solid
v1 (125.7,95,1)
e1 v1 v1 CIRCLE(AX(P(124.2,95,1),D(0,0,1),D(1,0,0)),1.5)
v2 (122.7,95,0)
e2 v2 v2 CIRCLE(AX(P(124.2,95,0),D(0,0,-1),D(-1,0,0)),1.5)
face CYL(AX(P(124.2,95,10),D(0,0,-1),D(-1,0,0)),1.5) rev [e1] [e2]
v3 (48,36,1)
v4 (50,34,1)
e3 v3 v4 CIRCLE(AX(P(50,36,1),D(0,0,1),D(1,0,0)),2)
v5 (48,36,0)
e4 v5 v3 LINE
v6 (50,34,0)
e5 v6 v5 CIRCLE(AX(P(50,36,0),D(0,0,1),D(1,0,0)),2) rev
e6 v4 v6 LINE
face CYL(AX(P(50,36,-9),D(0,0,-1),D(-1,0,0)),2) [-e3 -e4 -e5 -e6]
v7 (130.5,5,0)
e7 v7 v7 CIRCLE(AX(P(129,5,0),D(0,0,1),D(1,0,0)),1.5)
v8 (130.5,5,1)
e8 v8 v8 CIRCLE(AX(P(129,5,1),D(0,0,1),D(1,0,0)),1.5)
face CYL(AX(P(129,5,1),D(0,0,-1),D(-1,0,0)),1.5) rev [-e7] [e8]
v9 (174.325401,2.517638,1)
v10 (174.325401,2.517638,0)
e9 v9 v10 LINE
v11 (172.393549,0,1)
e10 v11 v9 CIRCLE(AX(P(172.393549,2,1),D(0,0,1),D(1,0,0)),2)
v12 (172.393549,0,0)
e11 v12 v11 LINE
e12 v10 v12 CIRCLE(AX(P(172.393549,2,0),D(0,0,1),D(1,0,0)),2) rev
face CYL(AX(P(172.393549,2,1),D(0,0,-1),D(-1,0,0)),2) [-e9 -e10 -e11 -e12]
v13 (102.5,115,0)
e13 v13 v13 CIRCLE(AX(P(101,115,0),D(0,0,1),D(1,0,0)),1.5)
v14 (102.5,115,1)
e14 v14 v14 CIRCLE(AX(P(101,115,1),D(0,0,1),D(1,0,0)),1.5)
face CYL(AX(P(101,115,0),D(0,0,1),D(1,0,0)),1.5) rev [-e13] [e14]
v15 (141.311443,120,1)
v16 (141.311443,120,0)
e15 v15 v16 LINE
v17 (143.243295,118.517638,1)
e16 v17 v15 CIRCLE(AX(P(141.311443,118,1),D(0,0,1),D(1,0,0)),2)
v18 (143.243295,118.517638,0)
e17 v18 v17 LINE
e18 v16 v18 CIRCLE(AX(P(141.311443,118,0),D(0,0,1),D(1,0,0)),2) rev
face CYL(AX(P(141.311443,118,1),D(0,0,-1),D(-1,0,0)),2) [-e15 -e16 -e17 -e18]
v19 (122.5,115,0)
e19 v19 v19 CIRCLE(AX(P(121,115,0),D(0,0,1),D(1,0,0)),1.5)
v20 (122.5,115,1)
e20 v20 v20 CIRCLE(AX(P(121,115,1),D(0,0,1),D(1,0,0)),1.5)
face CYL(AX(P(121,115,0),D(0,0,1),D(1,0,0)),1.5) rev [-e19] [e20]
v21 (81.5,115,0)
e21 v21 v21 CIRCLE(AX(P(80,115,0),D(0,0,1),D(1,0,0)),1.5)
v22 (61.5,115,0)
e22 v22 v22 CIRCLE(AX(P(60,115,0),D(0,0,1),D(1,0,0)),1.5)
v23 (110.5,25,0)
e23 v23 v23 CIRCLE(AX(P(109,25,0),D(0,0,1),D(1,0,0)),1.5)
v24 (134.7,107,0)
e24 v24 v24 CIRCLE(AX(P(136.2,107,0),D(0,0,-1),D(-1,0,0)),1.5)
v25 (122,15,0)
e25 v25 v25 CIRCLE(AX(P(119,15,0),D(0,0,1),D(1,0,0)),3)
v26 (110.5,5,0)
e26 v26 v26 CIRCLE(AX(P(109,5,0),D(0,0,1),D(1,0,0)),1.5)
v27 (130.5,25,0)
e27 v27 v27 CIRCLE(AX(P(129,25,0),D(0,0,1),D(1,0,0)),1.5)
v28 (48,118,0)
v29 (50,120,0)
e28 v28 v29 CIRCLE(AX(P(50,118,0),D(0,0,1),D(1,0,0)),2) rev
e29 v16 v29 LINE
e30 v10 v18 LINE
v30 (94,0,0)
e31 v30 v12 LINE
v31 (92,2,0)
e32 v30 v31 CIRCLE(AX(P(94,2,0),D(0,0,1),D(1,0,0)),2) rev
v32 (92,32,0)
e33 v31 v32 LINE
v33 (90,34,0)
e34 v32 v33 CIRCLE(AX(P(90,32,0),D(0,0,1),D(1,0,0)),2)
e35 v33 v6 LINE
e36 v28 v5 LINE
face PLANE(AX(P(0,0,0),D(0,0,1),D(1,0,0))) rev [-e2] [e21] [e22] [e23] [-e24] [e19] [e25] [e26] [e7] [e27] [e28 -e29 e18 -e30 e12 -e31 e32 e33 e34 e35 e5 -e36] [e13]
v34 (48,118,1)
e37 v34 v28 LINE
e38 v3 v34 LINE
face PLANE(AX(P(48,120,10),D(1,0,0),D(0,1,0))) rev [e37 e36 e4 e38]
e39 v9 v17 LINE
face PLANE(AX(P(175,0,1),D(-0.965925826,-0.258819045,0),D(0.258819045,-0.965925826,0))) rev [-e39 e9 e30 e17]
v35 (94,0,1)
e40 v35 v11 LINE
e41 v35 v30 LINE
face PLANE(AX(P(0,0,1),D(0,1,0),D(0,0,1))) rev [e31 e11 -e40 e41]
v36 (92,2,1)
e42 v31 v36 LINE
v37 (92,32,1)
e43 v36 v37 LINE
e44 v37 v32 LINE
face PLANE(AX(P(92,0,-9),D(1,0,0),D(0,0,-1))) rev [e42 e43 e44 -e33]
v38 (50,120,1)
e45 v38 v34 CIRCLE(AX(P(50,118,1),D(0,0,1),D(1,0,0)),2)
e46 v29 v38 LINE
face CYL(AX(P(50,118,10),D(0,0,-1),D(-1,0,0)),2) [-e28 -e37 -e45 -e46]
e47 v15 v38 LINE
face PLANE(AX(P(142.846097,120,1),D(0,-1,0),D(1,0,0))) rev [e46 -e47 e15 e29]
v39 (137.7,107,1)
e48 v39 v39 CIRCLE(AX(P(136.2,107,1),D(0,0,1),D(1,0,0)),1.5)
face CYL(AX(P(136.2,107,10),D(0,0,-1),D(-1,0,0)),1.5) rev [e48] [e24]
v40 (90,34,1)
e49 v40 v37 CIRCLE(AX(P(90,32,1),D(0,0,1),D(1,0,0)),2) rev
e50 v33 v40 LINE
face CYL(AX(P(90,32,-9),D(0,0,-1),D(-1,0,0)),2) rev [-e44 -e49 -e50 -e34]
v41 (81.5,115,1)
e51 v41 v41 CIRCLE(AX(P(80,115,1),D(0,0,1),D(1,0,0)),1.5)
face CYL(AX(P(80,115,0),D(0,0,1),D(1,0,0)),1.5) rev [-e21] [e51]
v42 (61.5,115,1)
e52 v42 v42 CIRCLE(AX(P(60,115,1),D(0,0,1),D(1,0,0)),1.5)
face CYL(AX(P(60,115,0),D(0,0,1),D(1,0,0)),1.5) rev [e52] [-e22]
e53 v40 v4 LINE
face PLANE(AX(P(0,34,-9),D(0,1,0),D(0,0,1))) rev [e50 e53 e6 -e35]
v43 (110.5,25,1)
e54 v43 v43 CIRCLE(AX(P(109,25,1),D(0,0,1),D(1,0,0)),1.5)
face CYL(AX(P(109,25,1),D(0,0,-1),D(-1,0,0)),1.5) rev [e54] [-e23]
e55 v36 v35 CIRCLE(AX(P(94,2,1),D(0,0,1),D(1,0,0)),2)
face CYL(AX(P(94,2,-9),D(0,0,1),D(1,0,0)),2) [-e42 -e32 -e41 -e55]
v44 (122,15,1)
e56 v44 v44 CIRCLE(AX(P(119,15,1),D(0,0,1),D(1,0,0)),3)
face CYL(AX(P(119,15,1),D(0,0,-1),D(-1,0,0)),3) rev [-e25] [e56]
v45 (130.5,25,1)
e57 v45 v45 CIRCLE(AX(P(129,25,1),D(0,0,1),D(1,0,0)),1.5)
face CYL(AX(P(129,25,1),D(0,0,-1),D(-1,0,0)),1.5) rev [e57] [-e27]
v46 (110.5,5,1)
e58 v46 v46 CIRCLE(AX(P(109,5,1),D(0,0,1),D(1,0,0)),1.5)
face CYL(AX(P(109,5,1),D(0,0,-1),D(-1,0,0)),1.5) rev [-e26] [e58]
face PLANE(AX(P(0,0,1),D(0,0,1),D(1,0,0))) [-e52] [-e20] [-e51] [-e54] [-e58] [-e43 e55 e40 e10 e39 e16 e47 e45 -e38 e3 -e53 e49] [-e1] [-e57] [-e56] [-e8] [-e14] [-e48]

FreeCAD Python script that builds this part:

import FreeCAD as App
import Part
import Sketcher
Q = App.Units.Quantity


def edges_at(feature, points):
    """Names of the edges that pass closest to the given points."""
    edges = feature.Shape.Edges
    near = lambda p: min(range(len(edges)), key=lambda i: edges[i].distToShape(Part.Vertex(*p))[0])
    return sorted({f"Edge{near(p) + 1}" for p in points})

doc = App.newDocument("Part")
body = doc.addObject("PartDesign::Body", "Body")

# Sketch on XY plane
sketch1 = doc.addObject("Sketcher::SketchObject", "Sketch")
body.addObject(sketch1)
sketch1.AttachmentSupport = (doc.XY_Plane, [""])
sketch1.MapMode = "FlatFace"
sketch1.addGeometry([
    Part.LineSegment(App.Vector(0, 0, 0), App.Vector(175, 0, 0)),  # 0
    Part.LineSegment(App.Vector(175, 0, 0), App.Vector(142.846097, 120, 0)),  # 1
    Part.LineSegment(App.Vector(142.846097, 120, 0), App.Vector(0, 120, 0)),  # 2
    Part.LineSegment(App.Vector(0, 120, 0), App.Vector(0, 0, 0)),  # 3
    Part.Circle(App.Vector(109, 5, 0), App.Vector(0, 0, 1), 1.5),  # 4
    Part.Circle(App.Vector(129, 5, 0), App.Vector(0, 0, 1), 1.5),  # 5
    Part.Circle(App.Vector(109, 25, 0), App.Vector(0, 0, 1), 1.5),  # 6
    Part.Circle(App.Vector(119, 15, 0), App.Vector(0, 0, 1), 3),  # 7
    Part.Circle(App.Vector(129, 25, 0), App.Vector(0, 0, 1), 1.5),  # 8
], False)
sketch1.addConstraint([
    Sketcher.Constraint("Coincident", 0, 2, 1, 1),
    Sketcher.Constraint("Coincident", 1, 2, 2, 1),
    Sketcher.Constraint("Coincident", 2, 2, 3, 1),
    Sketcher.Constraint("Coincident", 3, 2, 0, 1),
    Sketcher.Constraint("Horizontal", 0),
    Sketcher.Constraint("Horizontal", 2),
    Sketcher.Constraint("Vertical", 3),
    Sketcher.Constraint("Coincident", 3, 2, -1, 1),
    Sketcher.Constraint("Equal", 4, 5),
    Sketcher.Constraint("Equal", 5, 6),
    Sketcher.Constraint("Equal", 6, 8),
    Sketcher.Constraint("Horizontal", 4, 3, 5, 3),
    Sketcher.Constraint("Horizontal", 6, 3, 8, 3),
    Sketcher.Constraint("Vertical", 4, 3, 6, 3),
    Sketcher.Constraint("Vertical", 5, 3, 8, 3),
    Sketcher.Constraint("Diameter", 4, 3.0),
    Sketcher.Constraint("Diameter", 7, 6.0),
    Sketcher.Constraint("DistanceX", 0, 1, 0, 2, 175.0),
    Sketcher.Constraint("DistanceY", 3, 2, 3, 1, 120.0),
    Sketcher.Constraint("Angle", 1, Q("105 deg")),
    Sketcher.Constraint("DistanceX", -1, 1, 4, 3, 109.0),
    Sketcher.Constraint("DistanceY", -1, 1, 4, 3, 5.0),
    Sketcher.Constraint("DistanceX", -1, 1, 5, 3, 129.0),
    Sketcher.Constraint("DistanceY", -1, 1, 6, 3, 25.0),
    Sketcher.Constraint("DistanceX", -1, 1, 7, 3, 119.0),
    Sketcher.Constraint("DistanceY", -1, 1, 7, 3, 15.0),
])
pad1 = doc.addObject("PartDesign::Pad", "Pad")
body.addObject(pad1)
pad1.Profile = sketch1
pad1.Length = 1

# Sketch on XY plane
sketch2 = doc.addObject("Sketcher::SketchObject", "Sketch001")
body.addObject(sketch2)
sketch2.AttachmentSupport = (doc.XY_Plane, [""])
sketch2.MapMode = "FlatFace"
sketch2.addGeometry([
    Part.Circle(App.Vector(22, 101, 0), App.Vector(0, 0, 1), 1.5),
    Part.Circle(App.Vector(22, 81, 0), App.Vector(0, 0, 1), 1.5),
    Part.Circle(App.Vector(22, 60, 0), App.Vector(0, 0, 1), 1.5),
    Part.Circle(App.Vector(22, 40, 0), App.Vector(0, 0, 1), 1.5),
], False)
sketch2.addConstraint([
    Sketcher.Constraint("Equal", 0, 1),
    Sketcher.Constraint("Equal", 1, 2),
    Sketcher.Constraint("Equal", 2, 3),
    Sketcher.Constraint("Vertical", 0, 3, 1, 3),
    Sketcher.Constraint("Vertical", 1, 3, 2, 3),
    Sketcher.Constraint("Vertical", 2, 3, 3, 3),
    Sketcher.Constraint("Diameter", 0, 3.0),
    Sketcher.Constraint("DistanceX", -1, 1, 0, 3, 22.0),
    Sketcher.Constraint("DistanceY", -1, 1, 0, 3, 101.0),
    Sketcher.Constraint("DistanceY", -1, 1, 1, 3, 81.0),
    Sketcher.Constraint("DistanceY", -1, 1, 2, 3, 60.0),
    Sketcher.Constraint("DistanceY", -1, 1, 3, 3, 40.0),
])
pocket1 = doc.addObject("PartDesign::Pocket", "Pocket")
body.addObject(pocket1)
pocket1.Profile = sketch2
pocket1.Length = 4
pocket1.Reversed = True

# Sketch on XY plane
sketch3 = doc.addObject("Sketcher::SketchObject", "Sketch002")
body.addObject(sketch3)
sketch3.AttachmentSupport = (doc.XY_Plane, [""])
sketch3.MapMode = "FlatFace"
sketch3.addGeometry([
    Part.Circle(App.Vector(136.2, 107, 0), App.Vector(0, 0, 1), 1.5),
    Part.Circle(App.Vector(124.2, 95, 0), App.Vector(0, 0, 1), 1.5),
], False)
sketch3.addConstraint([
    Sketcher.Constraint("Equal", 0, 1),
    Sketcher.Constraint("Diameter", 0, 3.0),
    Sketcher.Constraint("DistanceY", -1, 1, 0, 3, 107.0),
    Sketcher.Constraint("DistanceY", -1, 1, 1, 3, 95.0),
    Sketcher.Constraint("DistanceX", 1, 3, 0, 3, 12.0),
    Sketcher.Constraint("DistanceX", -1, 1, 0, 3, 136.2),
])
pocket2 = doc.addObject("PartDesign::Pocket", "Pocket001")
body.addObject(pocket2)
pocket2.Profile = sketch3
pocket2.Length = 10
pocket2.Reversed = True

# Sketch on XY plane
sketch4 = doc.addObject("Sketcher::SketchObject", "Sketch003")
body.addObject(sketch4)
sketch4.AttachmentSupport = (doc.XY_Plane, [""])
sketch4.MapMode = "FlatFace"
sketch4.AttachmentOffset = App.Placement(App.Vector(0, 0, 1), App.Rotation())
sketch4.addGeometry([
    Part.LineSegment(App.Vector(0, 34, 0), App.Vector(0, 0, 0)),
    Part.LineSegment(App.Vector(0, 0, 0), App.Vector(53, 0, 0)),
    Part.LineSegment(App.Vector(53, 0, 0), App.Vector(53, 34, 0)),
    Part.LineSegment(App.Vector(53, 34, 0), App.Vector(0, 34, 0)),
], False)
sketch4.addConstraint([
    Sketcher.Constraint("Coincident", 0, 2, 1, 1),
    Sketcher.Constraint("Coincident", 1, 2, 2, 1),
    Sketcher.Constraint("Coincident", 2, 2, 3, 1),
    Sketcher.Constraint("Coincident", 3, 2, 0, 1),
    Sketcher.Constraint("Vertical", 0),
    Sketcher.Constraint("Horizontal", 1),
    Sketcher.Constraint("Vertical", 2),
    Sketcher.Constraint("Horizontal", 3),
    Sketcher.Constraint("Coincident", 0, 2, -1, 1),
    Sketcher.Constraint("DistanceX", 1, 1, 1, 2, 53.0),
    Sketcher.Constraint("DistanceY", 0, 2, 0, 1, 34.0),
])
pocket3 = doc.addObject("PartDesign::Pocket", "Pocket002")
body.addObject(pocket3)
pocket3.Profile = sketch4
pocket3.Length = 10

# Sketch on XY plane
sketch5 = doc.addObject("Sketcher::SketchObject", "Sketch004")
body.addObject(sketch5)
sketch5.AttachmentSupport = (doc.XY_Plane, [""])
sketch5.MapMode = "FlatFace"
sketch5.AttachmentOffset = App.Placement(App.Vector(0, 0, 1), App.Rotation())
sketch5.addGeometry([
    Part.LineSegment(App.Vector(53, 34, 0), App.Vector(53, 0, 0)),
    Part.LineSegment(App.Vector(53, 0, 0), App.Vector(92, 0, 0)),
    Part.LineSegment(App.Vector(92, 0, 0), App.Vector(92, 34, 0)),
    Part.LineSegment(App.Vector(92, 34, 0), App.Vector(53, 34, 0)),
], False)
sketch5.addConstraint([
    Sketcher.Constraint("Coincident", 0, 2, 1, 1),
    Sketcher.Constraint("Coincident", 1, 2, 2, 1),
    Sketcher.Constraint("Coincident", 2, 2, 3, 1),
    Sketcher.Constraint("Coincident", 3, 2, 0, 1),
    Sketcher.Constraint("Vertical", 0),
    Sketcher.Constraint("Horizontal", 1),
    Sketcher.Constraint("Vertical", 2),
    Sketcher.Constraint("Horizontal", 3),
    Sketcher.Constraint("PointOnObject", 0, 2, -1),
    Sketcher.Constraint("DistanceX", 1, 1, 1, 2, 39.0),
    Sketcher.Constraint("DistanceY", 0, 2, 0, 1, 34.0),
    Sketcher.Constraint("DistanceX", -1, 1, 0, 2, 53.0),
])
pocket4 = doc.addObject("PartDesign::Pocket", "Pocket003")
body.addObject(pocket4)
pocket4.Profile = sketch5
pocket4.Length = 10

# Sketch on XY plane
sketch6 = doc.addObject("Sketcher::SketchObject", "Sketch005")
body.addObject(sketch6)
sketch6.AttachmentSupport = (doc.XY_Plane, [""])
sketch6.MapMode = "FlatFace"
sketch6.AttachmentOffset = App.Placement(App.Vector(0, 0, 1), App.Rotation())
sketch6.addGeometry(Part.Circle(App.Vector(37, 104, 0), App.Vector(0, 0, 1), 10), False)
sketch6.addConstraint([
    Sketcher.Constraint("Diameter", 0, 20.0),
    Sketcher.Constraint("DistanceX", -1, 1, 0, 3, 37.0),
    Sketcher.Constraint("DistanceY", -1, 1, 0, 3, 104.0),
])
pocket5 = doc.addObject("PartDesign::Pocket", "Pocket004")
body.addObject(pocket5)
pocket5.Profile = sketch6
pocket5.Length = 10

# Sketch on XY plane
sketch7 = doc.addObject("Sketcher::SketchObject", "Sketch006")
body.addObject(sketch7)
sketch7.AttachmentSupport = (doc.XY_Plane, [""])
sketch7.MapMode = "FlatFace"
sketch7.AttachmentOffset = App.Placement(App.Vector(0, 0, 1), App.Rotation())
sketch7.addGeometry([
    Part.Circle(App.Vector(121, 115, 0), App.Vector(0, 0, 1), 1.5),  # 0
    Part.Circle(App.Vector(101, 115, 0), App.Vector(0, 0, 1), 1.5),  # 1
    Part.Circle(App.Vector(80, 115, 0), App.Vector(0, 0, 1), 1.5),  # 2
    Part.Circle(App.Vector(60, 115, 0), App.Vector(0, 0, 1), 1.5),  # 3
    Part.Circle(App.Vector(45, 115, 0), App.Vector(0, 0, 1), 1.5),  # 4
    Part.Circle(App.Vector(25, 115, 0), App.Vector(0, 0, 1), 1.5),  # 5
], False)
sketch7.addConstraint([
    Sketcher.Constraint("Equal", 0, 1),
    Sketcher.Constraint("Equal", 1, 2),
    Sketcher.Constraint("Equal", 2, 3),
    Sketcher.Constraint("Equal", 3, 4),
    Sketcher.Constraint("Equal", 4, 5),
    Sketcher.Constraint("Horizontal", 0, 3, 1, 3),
    Sketcher.Constraint("Horizontal", 1, 3, 2, 3),
    Sketcher.Constraint("Horizontal", 2, 3, 3, 3),
    Sketcher.Constraint("Horizontal", 3, 3, 4, 3),
    Sketcher.Constraint("Horizontal", 4, 3, 5, 3),
    Sketcher.Constraint("Diameter", 0, 3.0),
    Sketcher.Constraint("DistanceX", -1, 1, 0, 3, 121.0),
    Sketcher.Constraint("DistanceY", -1, 1, 0, 3, 115.0),
    Sketcher.Constraint("DistanceX", -1, 1, 1, 3, 101.0),
    Sketcher.Constraint("DistanceX", -1, 1, 2, 3, 80.0),
    Sketcher.Constraint("DistanceX", -1, 1, 3, 3, 60.0),
    Sketcher.Constraint("DistanceX", -1, 1, 4, 3, 45.0),
    Sketcher.Constraint("DistanceX", -1, 1, 5, 3, 25.0),
])
pocket6 = doc.addObject("PartDesign::Pocket", "Pocket005")
body.addObject(pocket6)
pocket6.Profile = sketch7
pocket6.Length = 1
doc.recompute()

fillet = doc.addObject("PartDesign::Fillet", "Fillet")
body.addObject(fillet)
fillet.Base = (pocket6, edges_at(pocket6, [
    (0, 34, 0.5),
    (0, 120, 0.5),
    (142.846, 120, 0.5),
    (175, 0, 0.5),
    (92, 34, 0.5),
    (92, 0, 0.5),
]))
fillet.Radius = 2

# Sketch on XY plane
sketch8 = doc.addObject("Sketcher::SketchObject", "Sketch007")
body.addObject(sketch8)
sketch8.AttachmentSupport = (doc.XY_Plane, [""])
sketch8.MapMode = "FlatFace"
sketch8.AttachmentOffset = App.Placement(App.Vector(0, 0, 1), App.Rotation())
sketch8.addGeometry(Part.Circle(App.Vector(37, 104, 0), App.Vector(0, 0, 1), 10), False)
sketch8.addConstraint([
    Sketcher.Constraint("Diameter", 0, 20.0),
    Sketcher.Constraint("DistanceX", -1, 1, 0, 3, 37.0),
    Sketcher.Constraint("DistanceY", -1, 1, 0, 3, 104.0),
])
pad2 = doc.addObject("PartDesign::Pad", "Pad001")
body.addObject(pad2)
pad2.Profile = sketch8
pad2.Length = 1
pad2.Reversed = True

# Sketch on XY plane
sketch9 = doc.addObject("Sketcher::SketchObject", "Sketch008")
body.addObject(sketch9)
sketch9.AttachmentSupport = (doc.XY_Plane, [""])
sketch9.MapMode = "FlatFace"
sketch9.addGeometry([
    Part.LineSegment(App.Vector(48, 120, 0), App.Vector(48, 34, 0)),
    Part.LineSegment(App.Vector(48, 34, 0), App.Vector(0, 34, 0)),
    Part.LineSegment(App.Vector(0, 34, 0), App.Vector(0, 120, 0)),
    Part.LineSegment(App.Vector(0, 120, 0), App.Vector(48, 120, 0)),
], False)
sketch9.addConstraint([
    Sketcher.Constraint("Coincident", 0, 2, 1, 1),
    Sketcher.Constraint("Coincident", 1, 2, 2, 1),
    Sketcher.Constraint("Coincident", 2, 2, 3, 1),
    Sketcher.Constraint("Coincident", 3, 2, 0, 1),
    Sketcher.Constraint("Vertical", 0),
    Sketcher.Constraint("Horizontal", 1),
    Sketcher.Constraint("Vertical", 2),
    Sketcher.Constraint("Horizontal", 3),
    Sketcher.Constraint("PointOnObject", 1, 2, -2),
    Sketcher.Constraint("DistanceX", 1, 2, 1, 1, 48.0),
    Sketcher.Constraint("DistanceY", 0, 2, 0, 1, 86.0),
    Sketcher.Constraint("DistanceY", -1, 1, 0, 2, 34.0),
])
pocket7 = doc.addObject("PartDesign::Pocket", "Pocket006")
body.addObject(pocket7)
pocket7.Profile = sketch9
pocket7.Length = 10
pocket7.Reversed = True
doc.recompute()

fillet2 = doc.addObject("PartDesign::Fillet", "Fillet001")
body.addObject(fillet2)
fillet2.Base = (pocket7, edges_at(pocket7, [(48, 34, 0.5), (48, 120, 0.5)]))
fillet2.Radius = 2

doc.recompute()
